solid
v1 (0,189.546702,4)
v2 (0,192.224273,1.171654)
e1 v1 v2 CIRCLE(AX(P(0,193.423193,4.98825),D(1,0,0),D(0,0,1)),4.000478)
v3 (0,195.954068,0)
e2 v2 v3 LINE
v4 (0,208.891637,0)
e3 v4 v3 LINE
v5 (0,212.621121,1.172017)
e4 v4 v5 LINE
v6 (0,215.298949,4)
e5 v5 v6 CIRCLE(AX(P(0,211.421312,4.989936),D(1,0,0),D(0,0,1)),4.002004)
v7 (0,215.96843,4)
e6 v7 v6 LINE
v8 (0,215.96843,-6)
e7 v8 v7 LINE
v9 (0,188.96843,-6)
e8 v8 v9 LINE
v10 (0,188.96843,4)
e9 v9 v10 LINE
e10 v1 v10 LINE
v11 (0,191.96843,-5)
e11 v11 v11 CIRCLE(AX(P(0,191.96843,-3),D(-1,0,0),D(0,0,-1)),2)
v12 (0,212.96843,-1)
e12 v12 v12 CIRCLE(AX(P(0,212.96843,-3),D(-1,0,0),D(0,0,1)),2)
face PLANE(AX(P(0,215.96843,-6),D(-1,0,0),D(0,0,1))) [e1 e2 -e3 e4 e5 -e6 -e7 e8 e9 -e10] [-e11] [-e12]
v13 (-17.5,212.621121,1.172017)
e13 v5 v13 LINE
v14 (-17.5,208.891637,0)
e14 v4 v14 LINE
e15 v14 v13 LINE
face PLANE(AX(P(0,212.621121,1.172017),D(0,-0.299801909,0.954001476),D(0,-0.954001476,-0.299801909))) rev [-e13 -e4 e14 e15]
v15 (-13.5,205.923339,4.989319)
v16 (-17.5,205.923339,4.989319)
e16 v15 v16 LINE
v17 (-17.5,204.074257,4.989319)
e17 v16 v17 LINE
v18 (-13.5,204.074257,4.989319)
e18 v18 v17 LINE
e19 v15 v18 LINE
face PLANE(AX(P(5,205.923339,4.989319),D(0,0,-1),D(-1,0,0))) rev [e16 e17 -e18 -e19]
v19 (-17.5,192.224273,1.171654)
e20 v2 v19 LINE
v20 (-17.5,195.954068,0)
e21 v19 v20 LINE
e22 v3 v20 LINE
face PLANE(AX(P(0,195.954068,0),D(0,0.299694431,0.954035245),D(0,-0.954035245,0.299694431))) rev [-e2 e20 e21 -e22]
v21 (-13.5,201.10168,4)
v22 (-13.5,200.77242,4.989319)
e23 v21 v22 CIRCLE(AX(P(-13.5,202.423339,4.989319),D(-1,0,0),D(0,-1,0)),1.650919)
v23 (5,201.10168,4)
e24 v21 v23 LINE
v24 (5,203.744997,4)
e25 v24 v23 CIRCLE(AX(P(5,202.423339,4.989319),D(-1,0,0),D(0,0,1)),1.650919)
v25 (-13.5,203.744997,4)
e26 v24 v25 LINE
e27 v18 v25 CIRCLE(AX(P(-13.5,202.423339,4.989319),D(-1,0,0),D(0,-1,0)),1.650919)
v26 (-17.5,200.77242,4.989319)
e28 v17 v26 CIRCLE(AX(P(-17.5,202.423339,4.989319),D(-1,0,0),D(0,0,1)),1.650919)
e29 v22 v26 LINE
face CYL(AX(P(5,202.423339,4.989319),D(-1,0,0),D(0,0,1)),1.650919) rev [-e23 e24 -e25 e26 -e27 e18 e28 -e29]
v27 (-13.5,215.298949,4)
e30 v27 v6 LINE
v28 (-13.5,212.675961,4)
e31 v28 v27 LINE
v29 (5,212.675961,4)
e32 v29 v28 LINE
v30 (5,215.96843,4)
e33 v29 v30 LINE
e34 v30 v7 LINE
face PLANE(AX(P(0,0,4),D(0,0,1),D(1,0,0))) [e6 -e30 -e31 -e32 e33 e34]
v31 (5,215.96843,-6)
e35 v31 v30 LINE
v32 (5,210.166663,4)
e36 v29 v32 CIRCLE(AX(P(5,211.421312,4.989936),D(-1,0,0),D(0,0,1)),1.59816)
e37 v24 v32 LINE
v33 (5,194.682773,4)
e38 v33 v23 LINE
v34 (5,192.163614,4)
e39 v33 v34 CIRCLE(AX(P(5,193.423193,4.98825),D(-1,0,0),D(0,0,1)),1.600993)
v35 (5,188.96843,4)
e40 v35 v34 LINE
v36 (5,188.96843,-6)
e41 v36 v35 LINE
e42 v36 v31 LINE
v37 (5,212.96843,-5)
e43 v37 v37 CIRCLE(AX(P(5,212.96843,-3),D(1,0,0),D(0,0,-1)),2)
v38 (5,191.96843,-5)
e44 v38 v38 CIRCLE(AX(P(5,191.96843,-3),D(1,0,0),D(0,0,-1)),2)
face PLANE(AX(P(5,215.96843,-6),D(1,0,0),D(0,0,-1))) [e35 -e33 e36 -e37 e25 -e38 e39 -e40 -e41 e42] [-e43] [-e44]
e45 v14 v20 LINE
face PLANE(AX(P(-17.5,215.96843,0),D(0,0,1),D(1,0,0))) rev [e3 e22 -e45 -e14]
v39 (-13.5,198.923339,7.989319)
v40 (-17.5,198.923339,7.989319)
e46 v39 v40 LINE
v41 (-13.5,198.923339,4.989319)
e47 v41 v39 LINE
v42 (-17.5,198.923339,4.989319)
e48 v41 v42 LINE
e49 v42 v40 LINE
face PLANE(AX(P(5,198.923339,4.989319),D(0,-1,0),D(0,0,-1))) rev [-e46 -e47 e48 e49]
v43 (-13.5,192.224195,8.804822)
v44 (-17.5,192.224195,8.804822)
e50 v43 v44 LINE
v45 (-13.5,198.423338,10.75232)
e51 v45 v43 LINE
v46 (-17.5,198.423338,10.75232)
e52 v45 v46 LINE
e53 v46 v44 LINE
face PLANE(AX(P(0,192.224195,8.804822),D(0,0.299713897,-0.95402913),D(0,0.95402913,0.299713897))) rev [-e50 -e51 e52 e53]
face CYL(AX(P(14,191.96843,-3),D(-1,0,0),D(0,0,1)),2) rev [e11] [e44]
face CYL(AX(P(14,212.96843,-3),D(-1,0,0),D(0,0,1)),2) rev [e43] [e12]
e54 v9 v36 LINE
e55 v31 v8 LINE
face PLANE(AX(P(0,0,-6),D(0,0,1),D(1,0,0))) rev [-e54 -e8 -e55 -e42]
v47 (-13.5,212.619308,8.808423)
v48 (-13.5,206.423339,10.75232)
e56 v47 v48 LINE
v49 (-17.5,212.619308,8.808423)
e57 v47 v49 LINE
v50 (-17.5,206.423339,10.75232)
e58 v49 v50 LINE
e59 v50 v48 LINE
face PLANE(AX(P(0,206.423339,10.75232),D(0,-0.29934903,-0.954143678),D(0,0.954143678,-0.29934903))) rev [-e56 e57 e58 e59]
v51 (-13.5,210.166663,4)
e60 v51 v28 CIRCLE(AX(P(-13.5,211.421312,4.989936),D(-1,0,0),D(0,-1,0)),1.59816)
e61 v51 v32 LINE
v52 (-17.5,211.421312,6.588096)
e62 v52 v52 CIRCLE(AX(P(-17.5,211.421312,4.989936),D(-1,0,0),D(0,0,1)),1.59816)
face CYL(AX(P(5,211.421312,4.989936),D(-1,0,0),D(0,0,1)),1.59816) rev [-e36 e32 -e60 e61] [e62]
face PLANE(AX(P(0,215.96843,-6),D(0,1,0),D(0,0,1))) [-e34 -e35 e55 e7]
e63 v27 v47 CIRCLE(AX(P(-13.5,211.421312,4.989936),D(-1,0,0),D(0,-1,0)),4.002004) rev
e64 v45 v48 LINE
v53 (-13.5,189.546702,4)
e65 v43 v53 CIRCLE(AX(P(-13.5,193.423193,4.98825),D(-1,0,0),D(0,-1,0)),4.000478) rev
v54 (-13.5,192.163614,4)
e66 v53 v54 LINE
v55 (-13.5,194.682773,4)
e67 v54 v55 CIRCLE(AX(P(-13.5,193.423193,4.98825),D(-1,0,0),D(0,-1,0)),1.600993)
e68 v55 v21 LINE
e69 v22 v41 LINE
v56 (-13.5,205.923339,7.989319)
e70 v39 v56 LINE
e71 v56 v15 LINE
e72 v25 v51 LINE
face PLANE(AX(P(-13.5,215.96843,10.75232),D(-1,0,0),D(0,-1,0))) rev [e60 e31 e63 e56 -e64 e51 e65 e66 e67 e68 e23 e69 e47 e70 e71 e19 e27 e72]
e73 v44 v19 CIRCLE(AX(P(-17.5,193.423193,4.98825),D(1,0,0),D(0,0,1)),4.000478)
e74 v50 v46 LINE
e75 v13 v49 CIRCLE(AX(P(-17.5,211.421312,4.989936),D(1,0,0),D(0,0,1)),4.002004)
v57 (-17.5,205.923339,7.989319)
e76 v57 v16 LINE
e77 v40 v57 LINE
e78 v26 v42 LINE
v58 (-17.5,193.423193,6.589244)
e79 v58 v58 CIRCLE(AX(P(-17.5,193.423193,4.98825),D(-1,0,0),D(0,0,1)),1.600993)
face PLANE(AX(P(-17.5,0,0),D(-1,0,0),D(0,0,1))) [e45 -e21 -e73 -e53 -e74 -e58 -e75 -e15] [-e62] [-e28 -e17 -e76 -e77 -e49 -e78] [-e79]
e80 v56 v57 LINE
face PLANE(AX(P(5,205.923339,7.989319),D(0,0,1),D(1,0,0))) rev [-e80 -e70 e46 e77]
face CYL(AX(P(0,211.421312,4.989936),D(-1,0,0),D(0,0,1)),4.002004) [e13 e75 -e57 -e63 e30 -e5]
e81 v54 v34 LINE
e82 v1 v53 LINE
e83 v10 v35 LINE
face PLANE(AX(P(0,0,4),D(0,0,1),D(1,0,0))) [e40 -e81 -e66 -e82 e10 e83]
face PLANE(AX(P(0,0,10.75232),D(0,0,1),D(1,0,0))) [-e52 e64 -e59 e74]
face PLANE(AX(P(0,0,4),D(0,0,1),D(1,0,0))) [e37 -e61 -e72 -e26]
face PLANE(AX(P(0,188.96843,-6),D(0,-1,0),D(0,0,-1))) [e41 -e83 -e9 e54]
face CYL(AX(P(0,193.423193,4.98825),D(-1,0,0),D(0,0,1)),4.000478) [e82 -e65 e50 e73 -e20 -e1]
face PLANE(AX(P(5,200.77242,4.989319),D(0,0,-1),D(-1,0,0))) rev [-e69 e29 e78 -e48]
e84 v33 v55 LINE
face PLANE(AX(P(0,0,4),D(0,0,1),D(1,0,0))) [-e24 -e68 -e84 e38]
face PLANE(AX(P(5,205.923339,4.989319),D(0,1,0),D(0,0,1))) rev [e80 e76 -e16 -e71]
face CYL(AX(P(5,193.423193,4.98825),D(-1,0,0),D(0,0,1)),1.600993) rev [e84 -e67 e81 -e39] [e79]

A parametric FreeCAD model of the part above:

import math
import FreeCAD as App
import Part
import Sketcher
from FreeCAD import Vector
Q = App.Units.Quantity

doc = App.newDocument("Part")
body = doc.addObject("PartDesign::Body", "Body")

# Sketch on XY plane
sketch1 = body.newObject("Sketcher::SketchObject", "Sketch")
sketch1.AttachmentSupport = (doc.getObject("XY_Plane"), [""])
sketch1.MapMode = "FlatFace"
sketch1.addGeometry([
    Part.LineSegment(Vector(0, 216, 0), Vector(0, 189, 0)),
    Part.LineSegment(Vector(0, 189, 0), Vector(5, 189, 0)),
    Part.LineSegment(Vector(5, 189, 0), Vector(5, 216, 0)),
    Part.LineSegment(Vector(5, 216, 0), Vector(0, 216, 0)),
], False)
sketch1.addConstraint([
    Sketcher.Constraint("Coincident", 0, 2, 1, 1),
    Sketcher.Constraint("Coincident", 1, 2, 2, 1),
    Sketcher.Constraint("Coincident", 2, 2, 3, 1),
    Sketcher.Constraint("Coincident", 3, 2, 0, 1),
    Sketcher.Constraint("Vertical", 0),
    Sketcher.Constraint("Horizontal", 1),
    Sketcher.Constraint("Vertical", 2),
    Sketcher.Constraint("Horizontal", 3),
    Sketcher.Constraint("PointOnObject", 0, 2, -2),
    Sketcher.Constraint("DistanceX", 1, 1, 1, 2, Q("5 mm")),
    Sketcher.Constraint("DistanceY", 0, 2, 0, 1, Q("27 mm")),
    Sketcher.Constraint("DistanceY", -1, 1, 0, 2, Q("188.96843 mm")),
])
pad1 = body.newObject("PartDesign::Pad", "Pad")
pad1.Profile = sketch1
pad1.Type = "TwoLengths"
pad1.Length = 4
pad1.Length2 = 6

# Sketch on YZ plane
sketch2 = body.newObject("Sketcher::SketchObject", "Sketch001")
sketch2.AttachmentSupport = (doc.getObject("YZ_Plane"), [""])
sketch2.MapMode = "FlatFace"
sketch2.addGeometry([
    Part.LineSegment(Vector(216, 0, 0), Vector(189, 0, 0)),
    Part.LineSegment(Vector(189, 0, 0), Vector(189, 4, 0)),
    Part.LineSegment(Vector(189, 4, 0), Vector(216, 4, 0)),
    Part.LineSegment(Vector(216, 4, 0), Vector(216, 0, 0)),
], False)
sketch2.addConstraint([
    Sketcher.Constraint("Coincident", 0, 2, 1, 1),
    Sketcher.Constraint("Coincident", 1, 2, 2, 1),
    Sketcher.Constraint("Coincident", 2, 2, 3, 1),
    Sketcher.Constraint("Coincident", 3, 2, 0, 1),
    Sketcher.Constraint("Horizontal", 0),
    Sketcher.Constraint("Vertical", 1),
    Sketcher.Constraint("Horizontal", 2),
    Sketcher.Constraint("Vertical", 3),
    Sketcher.Constraint("PointOnObject", 0, 2, -1),
    Sketcher.Constraint("DistanceX", 0, 2, 0, 1, Q("27 mm")),
    Sketcher.Constraint("DistanceY", 1, 1, 1, 2, Q("4 mm")),
    Sketcher.Constraint("DistanceX", -1, 1, 0, 2, Q("188.96843 mm")),
])
pad2 = body.newObject("PartDesign::Pad", "Pad001")
pad2.Profile = sketch2
pad2.Length = 17.5
pad2.Reversed = True

# Sketch on XY plane
sketch3 = body.newObject("Sketcher::SketchObject", "Sketch002")
sketch3.AttachmentSupport = (doc.getObject("XY_Plane"), [""])
sketch3.MapMode = "FlatFace"
sketch3.AttachmentOffset = App.Placement(Vector(0, 0, 4), App.Rotation())
sketch3.addGeometry([
    Part.LineSegment(Vector(-17.5, 216, 0), Vector(-17.5, 189, 0)),
    Part.LineSegment(Vector(-17.5, 189, 0), Vector(-13.5, 189, 0)),
    Part.LineSegment(Vector(-13.5, 189, 0), Vector(-13.5, 216, 0)),
    Part.LineSegment(Vector(-13.5, 216, 0), Vector(-17.5, 216, 0)),
], False)
sketch3.addConstraint([
    Sketcher.Constraint("Coincident", 0, 2, 1, 1),
    Sketcher.Constraint("Coincident", 1, 2, 2, 1),
    Sketcher.Constraint("Coincident", 2, 2, 3, 1),
    Sketcher.Constraint("Coincident", 3, 2, 0, 1),
    Sketcher.Constraint("Vertical", 0),
    Sketcher.Constraint("Horizontal", 1),
    Sketcher.Constraint("Vertical", 2),
    Sketcher.Constraint("Horizontal", 3),
    Sketcher.Constraint("DistanceX", 1, 1, 1, 2, Q("4 mm")),
    Sketcher.Constraint("DistanceY", 0, 2, 0, 1, Q("27 mm")),
    Sketcher.Constraint("DistanceX", 0, 2, -1, 1, Q("17.5 mm")),
    Sketcher.Constraint("DistanceY", -1, 1, 0, 2, Q("188.96843 mm")),
])
pad3 = body.newObject("PartDesign::Pad", "Pad002")
pad3.Profile = sketch3
pad3.Length = 6.75232

# Sketch on YZ plane
sketch4 = body.newObject("Sketcher::SketchObject", "Sketch003")
sketch4.AttachmentSupport = (doc.getObject("YZ_Plane"), [""])
sketch4.MapMode = "FlatFace"
sketch4.AttachmentOffset = App.Placement(Vector(0, 0, -17.5), App.Rotation())
sketch4.addGeometry([
    Part.LineSegment(Vector(206.4, 10.8, 0), Vector(216, 10.8, 0)),  # 0
    Part.LineSegment(Vector(216, 10.8, 0), Vector(216, 0, 0)),  # 1
    Part.LineSegment(Vector(216, 0, 0), Vector(208.9, 0, 0)),  # 2
    Part.LineSegment(Vector(208.9, 0, 0), Vector(212.6, 1.2, 0)),  # 3
    Part.ArcOfCircle(Part.Circle(Vector(211.4, 5, 0), Vector(0, 0, 1), 4), math.radians(-73), math.radians(73)),  # 4
    Part.LineSegment(Vector(212.6, 8.8, 0), Vector(206.4, 10.8, 0)),  # 5
    Part.LineSegment(Vector(189, 10.8, 0), Vector(198.4, 10.8, 0)),  # 6
    Part.LineSegment(Vector(198.4, 10.8, 0), Vector(192.2, 8.8, 0)),  # 7
    Part.ArcOfCircle(Part.Circle(Vector(193.4, 5, 0), Vector(0, 0, 1), 4), math.radians(107), math.radians(253)),  # 8
    Part.LineSegment(Vector(192.2, 1.2, 0), Vector(196, 0, 0)),  # 9
    Part.LineSegment(Vector(196, 0, 0), Vector(189, 0, 0)),  # 10
    Part.LineSegment(Vector(189, 0, 0), Vector(189, 10.8, 0)),  # 11
], False)
sketch4.addConstraint([
    Sketcher.Constraint("Coincident", 0, 2, 1, 1),
    Sketcher.Constraint("Coincident", 1, 2, 2, 1),
    Sketcher.Constraint("Coincident", 2, 2, 3, 1),
    Sketcher.Constraint("Tangent", 3, 2, 4, 1),
    Sketcher.Constraint("Tangent", 4, 2, 5, 1),
    Sketcher.Constraint("Coincident", 5, 2, 0, 1),
    Sketcher.Constraint("Coincident", 6, 2, 7, 1),
    Sketcher.Constraint("Tangent", 7, 2, 8, 1),
    Sketcher.Constraint("Tangent", 8, 2, 9, 1),
    Sketcher.Constraint("Coincident", 9, 2, 10, 1),
    Sketcher.Constraint("Coincident", 10, 2, 11, 1),
    Sketcher.Constraint("Coincident", 11, 2, 6, 1),
    Sketcher.Constraint("Horizontal", 0),
    Sketcher.Constraint("Vertical", 1),
    Sketcher.Constraint("Horizontal", 2),
    Sketcher.Constraint("Horizontal", 6),
    Sketcher.Constraint("Horizontal", 10),
    Sketcher.Constraint("Vertical", 11),
    Sketcher.Constraint("PointOnObject", 1, 2, -1),
    Sketcher.Constraint("PointOnObject", 9, 2, -1),
    Sketcher.Constraint("Horizontal", 5, 2, 6, 2),
    Sketcher.Constraint("DistanceX", 6, 2, 5, 2, Q("8 mm")),
    Sketcher.Constraint("Radius", 4, Q("4.002004 mm")),
    Sketcher.Constraint("Radius", 8, Q("4.000478 mm")),
    Sketcher.Constraint("DistanceX", 7, 2, 8, 3, Q("1.198999 mm")),
    Sketcher.Constraint("DistanceX", 0, 1, 0, 2, Q("9.545091 mm")),
    Sketcher.Constraint("DistanceX", 6, 1, 6, 2, Q("9.454909 mm")),
    Sketcher.Constraint("DistanceX", 10, 2, 10, 1, Q("6.985638 mm")),
    Sketcher.Constraint("DistanceY", 1, 2, 1, 1, Q("10.75232 mm")),
    Sketcher.Constraint("DistanceX", 6, 2, 2, 2, Q("10.468298 mm")),
    Sketcher.Constraint("Distance", 5, Q("6.493749 mm")),
    Sketcher.Constraint("DistanceY", -1, 1, 8, 3, Q("4.98825 mm")),
    Sketcher.Constraint("DistanceX", -1, 1, 0, 2, Q("215.96843 mm")),
    Sketcher.Constraint("DistanceX", -1, 1, 3, 2, Q("212.621121 mm")),
])
pocket1 = body.newObject("PartDesign::Pocket", "Pocket")
pocket1.Profile = sketch4
pocket1.Length = 17.5
pocket1.Reversed = True

# Sketch on YZ plane
sketch5 = body.newObject("Sketcher::SketchObject", "Sketch004")
sketch5.AttachmentSupport = (doc.getObject("YZ_Plane"), [""])
sketch5.MapMode = "FlatFace"
sketch5.AttachmentOffset = App.Placement(Vector(0, 0, -17.5), App.Rotation())
sketch5.addGeometry([
    Part.Circle(Vector(211.4, 5, 0), Vector(0, 0, 1), 1.6),  # 0
    Part.Circle(Vector(193.4, 5, 0), Vector(0, 0, 1), 1.6),  # 1
    Part.LineSegment(Vector(200.8, 5, 0), Vector(198.9, 5, 0)),  # 2
    Part.LineSegment(Vector(198.9, 5, 0), Vector(198.9, 8, 0)),  # 3
    Part.LineSegment(Vector(198.9, 8, 0), Vector(205.9, 8, 0)),  # 4
    Part.LineSegment(Vector(205.9, 8, 0), Vector(205.9, 5, 0)),  # 5
    Part.LineSegment(Vector(205.9, 5, 0), Vector(204.1, 5, 0)),  # 6
    Part.ArcOfCircle(Part.Circle(Vector(202.4, 5, 0), Vector(0, 0, 1), 1.7), math.radians(180), math.radians(360)),  # 7
], False)
sketch5.addConstraint([
    Sketcher.Constraint("Coincident", 2, 2, 3, 1),
    Sketcher.Constraint("Coincident", 3, 2, 4, 1),
    Sketcher.Constraint("Coincident", 4, 2, 5, 1),
    Sketcher.Constraint("Coincident", 5, 2, 6, 1),
    Sketcher.Constraint("Coincident", 6, 2, 7, 2),
    Sketcher.Constraint("Coincident", 7, 1, 2, 1),
    Sketcher.Constraint("Horizontal", 2),
    Sketcher.Constraint("Vertical", 3),
    Sketcher.Constraint("Horizontal", 4),
    Sketcher.Constraint("Vertical", 5),
    Sketcher.Constraint("Horizontal", 6),
    Sketcher.Constraint("Horizontal", 7, 3, 2, 2),
    Sketcher.Constraint("Horizontal", 2, 2, 5, 2),
    Sketcher.Constraint("Equal", 2, 6),
    Sketcher.Constraint("DistanceX", 4, 1, 4, 2, Q("7 mm")),
    Sketcher.Constraint("DistanceY", 3, 1, 3, 2, Q("3 mm")),
    Sketcher.Constraint("Diameter", 0, Q("3.196321 mm")),
    Sketcher.Constraint("Radius", 7, Q("1.650919 mm")),
    Sketcher.Constraint("Diameter", 1, Q("3.201987 mm")),
    Sketcher.Constraint("DistanceY", -1, 1, 1, 3, Q("4.98825 mm")),
    Sketcher.Constraint("DistanceX", -1, 1, 7, 3, Q("202.423339 mm")),
    Sketcher.Constraint("DistanceY", -1, 1, 7, 3, Q("4.989319 mm")),
    Sketcher.Constraint("DistanceX", 1, 3, 0, 3, Q("17.998119 mm")),
    Sketcher.Constraint("DistanceX", -1, 1, 0, 3, Q("211.421312 mm")),
    Sketcher.Constraint("DistanceY", -1, 1, 0, 3, Q("4.989936 mm")),
])
pocket2 = body.newObject("PartDesign::Pocket", "Pocket001")
pocket2.Profile = sketch5
pocket2.Type = "ThroughAll"
pocket2.Reversed = True

# Sketch on YZ plane
sketch6 = body.newObject("Sketcher::SketchObject", "Sketch005")
sketch6.AttachmentSupport = (doc.getObject("YZ_Plane"), [""])
sketch6.MapMode = "FlatFace"
sketch6.addGeometry([
    Part.Circle(Vector(213, -3, 0), Vector(0, 0, 1), 2),
    Part.Circle(Vector(192, -3, 0), Vector(0, 0, 1), 2),
], False)
sketch6.addConstraint([
    Sketcher.Constraint("Equal", 0, 1),
    Sketcher.Constraint("Horizontal", 0, 3, 1, 3),
    Sketcher.Constraint("Diameter", 0, Q("4 mm")),
    Sketcher.Constraint("DistanceY", 0, 3, -1, 1, Q("3 mm")),
    Sketcher.Constraint("DistanceX", 1, 3, 0, 3, Q("21 mm")),
    Sketcher.Constraint("DistanceX", -1, 1, 0, 3, Q("212.96843 mm")),
])
pocket3 = body.newObject("PartDesign::Pocket", "Pocket002")
pocket3.Profile = sketch6
pocket3.Length = 14
pocket3.Reversed = True

doc.recompute()
